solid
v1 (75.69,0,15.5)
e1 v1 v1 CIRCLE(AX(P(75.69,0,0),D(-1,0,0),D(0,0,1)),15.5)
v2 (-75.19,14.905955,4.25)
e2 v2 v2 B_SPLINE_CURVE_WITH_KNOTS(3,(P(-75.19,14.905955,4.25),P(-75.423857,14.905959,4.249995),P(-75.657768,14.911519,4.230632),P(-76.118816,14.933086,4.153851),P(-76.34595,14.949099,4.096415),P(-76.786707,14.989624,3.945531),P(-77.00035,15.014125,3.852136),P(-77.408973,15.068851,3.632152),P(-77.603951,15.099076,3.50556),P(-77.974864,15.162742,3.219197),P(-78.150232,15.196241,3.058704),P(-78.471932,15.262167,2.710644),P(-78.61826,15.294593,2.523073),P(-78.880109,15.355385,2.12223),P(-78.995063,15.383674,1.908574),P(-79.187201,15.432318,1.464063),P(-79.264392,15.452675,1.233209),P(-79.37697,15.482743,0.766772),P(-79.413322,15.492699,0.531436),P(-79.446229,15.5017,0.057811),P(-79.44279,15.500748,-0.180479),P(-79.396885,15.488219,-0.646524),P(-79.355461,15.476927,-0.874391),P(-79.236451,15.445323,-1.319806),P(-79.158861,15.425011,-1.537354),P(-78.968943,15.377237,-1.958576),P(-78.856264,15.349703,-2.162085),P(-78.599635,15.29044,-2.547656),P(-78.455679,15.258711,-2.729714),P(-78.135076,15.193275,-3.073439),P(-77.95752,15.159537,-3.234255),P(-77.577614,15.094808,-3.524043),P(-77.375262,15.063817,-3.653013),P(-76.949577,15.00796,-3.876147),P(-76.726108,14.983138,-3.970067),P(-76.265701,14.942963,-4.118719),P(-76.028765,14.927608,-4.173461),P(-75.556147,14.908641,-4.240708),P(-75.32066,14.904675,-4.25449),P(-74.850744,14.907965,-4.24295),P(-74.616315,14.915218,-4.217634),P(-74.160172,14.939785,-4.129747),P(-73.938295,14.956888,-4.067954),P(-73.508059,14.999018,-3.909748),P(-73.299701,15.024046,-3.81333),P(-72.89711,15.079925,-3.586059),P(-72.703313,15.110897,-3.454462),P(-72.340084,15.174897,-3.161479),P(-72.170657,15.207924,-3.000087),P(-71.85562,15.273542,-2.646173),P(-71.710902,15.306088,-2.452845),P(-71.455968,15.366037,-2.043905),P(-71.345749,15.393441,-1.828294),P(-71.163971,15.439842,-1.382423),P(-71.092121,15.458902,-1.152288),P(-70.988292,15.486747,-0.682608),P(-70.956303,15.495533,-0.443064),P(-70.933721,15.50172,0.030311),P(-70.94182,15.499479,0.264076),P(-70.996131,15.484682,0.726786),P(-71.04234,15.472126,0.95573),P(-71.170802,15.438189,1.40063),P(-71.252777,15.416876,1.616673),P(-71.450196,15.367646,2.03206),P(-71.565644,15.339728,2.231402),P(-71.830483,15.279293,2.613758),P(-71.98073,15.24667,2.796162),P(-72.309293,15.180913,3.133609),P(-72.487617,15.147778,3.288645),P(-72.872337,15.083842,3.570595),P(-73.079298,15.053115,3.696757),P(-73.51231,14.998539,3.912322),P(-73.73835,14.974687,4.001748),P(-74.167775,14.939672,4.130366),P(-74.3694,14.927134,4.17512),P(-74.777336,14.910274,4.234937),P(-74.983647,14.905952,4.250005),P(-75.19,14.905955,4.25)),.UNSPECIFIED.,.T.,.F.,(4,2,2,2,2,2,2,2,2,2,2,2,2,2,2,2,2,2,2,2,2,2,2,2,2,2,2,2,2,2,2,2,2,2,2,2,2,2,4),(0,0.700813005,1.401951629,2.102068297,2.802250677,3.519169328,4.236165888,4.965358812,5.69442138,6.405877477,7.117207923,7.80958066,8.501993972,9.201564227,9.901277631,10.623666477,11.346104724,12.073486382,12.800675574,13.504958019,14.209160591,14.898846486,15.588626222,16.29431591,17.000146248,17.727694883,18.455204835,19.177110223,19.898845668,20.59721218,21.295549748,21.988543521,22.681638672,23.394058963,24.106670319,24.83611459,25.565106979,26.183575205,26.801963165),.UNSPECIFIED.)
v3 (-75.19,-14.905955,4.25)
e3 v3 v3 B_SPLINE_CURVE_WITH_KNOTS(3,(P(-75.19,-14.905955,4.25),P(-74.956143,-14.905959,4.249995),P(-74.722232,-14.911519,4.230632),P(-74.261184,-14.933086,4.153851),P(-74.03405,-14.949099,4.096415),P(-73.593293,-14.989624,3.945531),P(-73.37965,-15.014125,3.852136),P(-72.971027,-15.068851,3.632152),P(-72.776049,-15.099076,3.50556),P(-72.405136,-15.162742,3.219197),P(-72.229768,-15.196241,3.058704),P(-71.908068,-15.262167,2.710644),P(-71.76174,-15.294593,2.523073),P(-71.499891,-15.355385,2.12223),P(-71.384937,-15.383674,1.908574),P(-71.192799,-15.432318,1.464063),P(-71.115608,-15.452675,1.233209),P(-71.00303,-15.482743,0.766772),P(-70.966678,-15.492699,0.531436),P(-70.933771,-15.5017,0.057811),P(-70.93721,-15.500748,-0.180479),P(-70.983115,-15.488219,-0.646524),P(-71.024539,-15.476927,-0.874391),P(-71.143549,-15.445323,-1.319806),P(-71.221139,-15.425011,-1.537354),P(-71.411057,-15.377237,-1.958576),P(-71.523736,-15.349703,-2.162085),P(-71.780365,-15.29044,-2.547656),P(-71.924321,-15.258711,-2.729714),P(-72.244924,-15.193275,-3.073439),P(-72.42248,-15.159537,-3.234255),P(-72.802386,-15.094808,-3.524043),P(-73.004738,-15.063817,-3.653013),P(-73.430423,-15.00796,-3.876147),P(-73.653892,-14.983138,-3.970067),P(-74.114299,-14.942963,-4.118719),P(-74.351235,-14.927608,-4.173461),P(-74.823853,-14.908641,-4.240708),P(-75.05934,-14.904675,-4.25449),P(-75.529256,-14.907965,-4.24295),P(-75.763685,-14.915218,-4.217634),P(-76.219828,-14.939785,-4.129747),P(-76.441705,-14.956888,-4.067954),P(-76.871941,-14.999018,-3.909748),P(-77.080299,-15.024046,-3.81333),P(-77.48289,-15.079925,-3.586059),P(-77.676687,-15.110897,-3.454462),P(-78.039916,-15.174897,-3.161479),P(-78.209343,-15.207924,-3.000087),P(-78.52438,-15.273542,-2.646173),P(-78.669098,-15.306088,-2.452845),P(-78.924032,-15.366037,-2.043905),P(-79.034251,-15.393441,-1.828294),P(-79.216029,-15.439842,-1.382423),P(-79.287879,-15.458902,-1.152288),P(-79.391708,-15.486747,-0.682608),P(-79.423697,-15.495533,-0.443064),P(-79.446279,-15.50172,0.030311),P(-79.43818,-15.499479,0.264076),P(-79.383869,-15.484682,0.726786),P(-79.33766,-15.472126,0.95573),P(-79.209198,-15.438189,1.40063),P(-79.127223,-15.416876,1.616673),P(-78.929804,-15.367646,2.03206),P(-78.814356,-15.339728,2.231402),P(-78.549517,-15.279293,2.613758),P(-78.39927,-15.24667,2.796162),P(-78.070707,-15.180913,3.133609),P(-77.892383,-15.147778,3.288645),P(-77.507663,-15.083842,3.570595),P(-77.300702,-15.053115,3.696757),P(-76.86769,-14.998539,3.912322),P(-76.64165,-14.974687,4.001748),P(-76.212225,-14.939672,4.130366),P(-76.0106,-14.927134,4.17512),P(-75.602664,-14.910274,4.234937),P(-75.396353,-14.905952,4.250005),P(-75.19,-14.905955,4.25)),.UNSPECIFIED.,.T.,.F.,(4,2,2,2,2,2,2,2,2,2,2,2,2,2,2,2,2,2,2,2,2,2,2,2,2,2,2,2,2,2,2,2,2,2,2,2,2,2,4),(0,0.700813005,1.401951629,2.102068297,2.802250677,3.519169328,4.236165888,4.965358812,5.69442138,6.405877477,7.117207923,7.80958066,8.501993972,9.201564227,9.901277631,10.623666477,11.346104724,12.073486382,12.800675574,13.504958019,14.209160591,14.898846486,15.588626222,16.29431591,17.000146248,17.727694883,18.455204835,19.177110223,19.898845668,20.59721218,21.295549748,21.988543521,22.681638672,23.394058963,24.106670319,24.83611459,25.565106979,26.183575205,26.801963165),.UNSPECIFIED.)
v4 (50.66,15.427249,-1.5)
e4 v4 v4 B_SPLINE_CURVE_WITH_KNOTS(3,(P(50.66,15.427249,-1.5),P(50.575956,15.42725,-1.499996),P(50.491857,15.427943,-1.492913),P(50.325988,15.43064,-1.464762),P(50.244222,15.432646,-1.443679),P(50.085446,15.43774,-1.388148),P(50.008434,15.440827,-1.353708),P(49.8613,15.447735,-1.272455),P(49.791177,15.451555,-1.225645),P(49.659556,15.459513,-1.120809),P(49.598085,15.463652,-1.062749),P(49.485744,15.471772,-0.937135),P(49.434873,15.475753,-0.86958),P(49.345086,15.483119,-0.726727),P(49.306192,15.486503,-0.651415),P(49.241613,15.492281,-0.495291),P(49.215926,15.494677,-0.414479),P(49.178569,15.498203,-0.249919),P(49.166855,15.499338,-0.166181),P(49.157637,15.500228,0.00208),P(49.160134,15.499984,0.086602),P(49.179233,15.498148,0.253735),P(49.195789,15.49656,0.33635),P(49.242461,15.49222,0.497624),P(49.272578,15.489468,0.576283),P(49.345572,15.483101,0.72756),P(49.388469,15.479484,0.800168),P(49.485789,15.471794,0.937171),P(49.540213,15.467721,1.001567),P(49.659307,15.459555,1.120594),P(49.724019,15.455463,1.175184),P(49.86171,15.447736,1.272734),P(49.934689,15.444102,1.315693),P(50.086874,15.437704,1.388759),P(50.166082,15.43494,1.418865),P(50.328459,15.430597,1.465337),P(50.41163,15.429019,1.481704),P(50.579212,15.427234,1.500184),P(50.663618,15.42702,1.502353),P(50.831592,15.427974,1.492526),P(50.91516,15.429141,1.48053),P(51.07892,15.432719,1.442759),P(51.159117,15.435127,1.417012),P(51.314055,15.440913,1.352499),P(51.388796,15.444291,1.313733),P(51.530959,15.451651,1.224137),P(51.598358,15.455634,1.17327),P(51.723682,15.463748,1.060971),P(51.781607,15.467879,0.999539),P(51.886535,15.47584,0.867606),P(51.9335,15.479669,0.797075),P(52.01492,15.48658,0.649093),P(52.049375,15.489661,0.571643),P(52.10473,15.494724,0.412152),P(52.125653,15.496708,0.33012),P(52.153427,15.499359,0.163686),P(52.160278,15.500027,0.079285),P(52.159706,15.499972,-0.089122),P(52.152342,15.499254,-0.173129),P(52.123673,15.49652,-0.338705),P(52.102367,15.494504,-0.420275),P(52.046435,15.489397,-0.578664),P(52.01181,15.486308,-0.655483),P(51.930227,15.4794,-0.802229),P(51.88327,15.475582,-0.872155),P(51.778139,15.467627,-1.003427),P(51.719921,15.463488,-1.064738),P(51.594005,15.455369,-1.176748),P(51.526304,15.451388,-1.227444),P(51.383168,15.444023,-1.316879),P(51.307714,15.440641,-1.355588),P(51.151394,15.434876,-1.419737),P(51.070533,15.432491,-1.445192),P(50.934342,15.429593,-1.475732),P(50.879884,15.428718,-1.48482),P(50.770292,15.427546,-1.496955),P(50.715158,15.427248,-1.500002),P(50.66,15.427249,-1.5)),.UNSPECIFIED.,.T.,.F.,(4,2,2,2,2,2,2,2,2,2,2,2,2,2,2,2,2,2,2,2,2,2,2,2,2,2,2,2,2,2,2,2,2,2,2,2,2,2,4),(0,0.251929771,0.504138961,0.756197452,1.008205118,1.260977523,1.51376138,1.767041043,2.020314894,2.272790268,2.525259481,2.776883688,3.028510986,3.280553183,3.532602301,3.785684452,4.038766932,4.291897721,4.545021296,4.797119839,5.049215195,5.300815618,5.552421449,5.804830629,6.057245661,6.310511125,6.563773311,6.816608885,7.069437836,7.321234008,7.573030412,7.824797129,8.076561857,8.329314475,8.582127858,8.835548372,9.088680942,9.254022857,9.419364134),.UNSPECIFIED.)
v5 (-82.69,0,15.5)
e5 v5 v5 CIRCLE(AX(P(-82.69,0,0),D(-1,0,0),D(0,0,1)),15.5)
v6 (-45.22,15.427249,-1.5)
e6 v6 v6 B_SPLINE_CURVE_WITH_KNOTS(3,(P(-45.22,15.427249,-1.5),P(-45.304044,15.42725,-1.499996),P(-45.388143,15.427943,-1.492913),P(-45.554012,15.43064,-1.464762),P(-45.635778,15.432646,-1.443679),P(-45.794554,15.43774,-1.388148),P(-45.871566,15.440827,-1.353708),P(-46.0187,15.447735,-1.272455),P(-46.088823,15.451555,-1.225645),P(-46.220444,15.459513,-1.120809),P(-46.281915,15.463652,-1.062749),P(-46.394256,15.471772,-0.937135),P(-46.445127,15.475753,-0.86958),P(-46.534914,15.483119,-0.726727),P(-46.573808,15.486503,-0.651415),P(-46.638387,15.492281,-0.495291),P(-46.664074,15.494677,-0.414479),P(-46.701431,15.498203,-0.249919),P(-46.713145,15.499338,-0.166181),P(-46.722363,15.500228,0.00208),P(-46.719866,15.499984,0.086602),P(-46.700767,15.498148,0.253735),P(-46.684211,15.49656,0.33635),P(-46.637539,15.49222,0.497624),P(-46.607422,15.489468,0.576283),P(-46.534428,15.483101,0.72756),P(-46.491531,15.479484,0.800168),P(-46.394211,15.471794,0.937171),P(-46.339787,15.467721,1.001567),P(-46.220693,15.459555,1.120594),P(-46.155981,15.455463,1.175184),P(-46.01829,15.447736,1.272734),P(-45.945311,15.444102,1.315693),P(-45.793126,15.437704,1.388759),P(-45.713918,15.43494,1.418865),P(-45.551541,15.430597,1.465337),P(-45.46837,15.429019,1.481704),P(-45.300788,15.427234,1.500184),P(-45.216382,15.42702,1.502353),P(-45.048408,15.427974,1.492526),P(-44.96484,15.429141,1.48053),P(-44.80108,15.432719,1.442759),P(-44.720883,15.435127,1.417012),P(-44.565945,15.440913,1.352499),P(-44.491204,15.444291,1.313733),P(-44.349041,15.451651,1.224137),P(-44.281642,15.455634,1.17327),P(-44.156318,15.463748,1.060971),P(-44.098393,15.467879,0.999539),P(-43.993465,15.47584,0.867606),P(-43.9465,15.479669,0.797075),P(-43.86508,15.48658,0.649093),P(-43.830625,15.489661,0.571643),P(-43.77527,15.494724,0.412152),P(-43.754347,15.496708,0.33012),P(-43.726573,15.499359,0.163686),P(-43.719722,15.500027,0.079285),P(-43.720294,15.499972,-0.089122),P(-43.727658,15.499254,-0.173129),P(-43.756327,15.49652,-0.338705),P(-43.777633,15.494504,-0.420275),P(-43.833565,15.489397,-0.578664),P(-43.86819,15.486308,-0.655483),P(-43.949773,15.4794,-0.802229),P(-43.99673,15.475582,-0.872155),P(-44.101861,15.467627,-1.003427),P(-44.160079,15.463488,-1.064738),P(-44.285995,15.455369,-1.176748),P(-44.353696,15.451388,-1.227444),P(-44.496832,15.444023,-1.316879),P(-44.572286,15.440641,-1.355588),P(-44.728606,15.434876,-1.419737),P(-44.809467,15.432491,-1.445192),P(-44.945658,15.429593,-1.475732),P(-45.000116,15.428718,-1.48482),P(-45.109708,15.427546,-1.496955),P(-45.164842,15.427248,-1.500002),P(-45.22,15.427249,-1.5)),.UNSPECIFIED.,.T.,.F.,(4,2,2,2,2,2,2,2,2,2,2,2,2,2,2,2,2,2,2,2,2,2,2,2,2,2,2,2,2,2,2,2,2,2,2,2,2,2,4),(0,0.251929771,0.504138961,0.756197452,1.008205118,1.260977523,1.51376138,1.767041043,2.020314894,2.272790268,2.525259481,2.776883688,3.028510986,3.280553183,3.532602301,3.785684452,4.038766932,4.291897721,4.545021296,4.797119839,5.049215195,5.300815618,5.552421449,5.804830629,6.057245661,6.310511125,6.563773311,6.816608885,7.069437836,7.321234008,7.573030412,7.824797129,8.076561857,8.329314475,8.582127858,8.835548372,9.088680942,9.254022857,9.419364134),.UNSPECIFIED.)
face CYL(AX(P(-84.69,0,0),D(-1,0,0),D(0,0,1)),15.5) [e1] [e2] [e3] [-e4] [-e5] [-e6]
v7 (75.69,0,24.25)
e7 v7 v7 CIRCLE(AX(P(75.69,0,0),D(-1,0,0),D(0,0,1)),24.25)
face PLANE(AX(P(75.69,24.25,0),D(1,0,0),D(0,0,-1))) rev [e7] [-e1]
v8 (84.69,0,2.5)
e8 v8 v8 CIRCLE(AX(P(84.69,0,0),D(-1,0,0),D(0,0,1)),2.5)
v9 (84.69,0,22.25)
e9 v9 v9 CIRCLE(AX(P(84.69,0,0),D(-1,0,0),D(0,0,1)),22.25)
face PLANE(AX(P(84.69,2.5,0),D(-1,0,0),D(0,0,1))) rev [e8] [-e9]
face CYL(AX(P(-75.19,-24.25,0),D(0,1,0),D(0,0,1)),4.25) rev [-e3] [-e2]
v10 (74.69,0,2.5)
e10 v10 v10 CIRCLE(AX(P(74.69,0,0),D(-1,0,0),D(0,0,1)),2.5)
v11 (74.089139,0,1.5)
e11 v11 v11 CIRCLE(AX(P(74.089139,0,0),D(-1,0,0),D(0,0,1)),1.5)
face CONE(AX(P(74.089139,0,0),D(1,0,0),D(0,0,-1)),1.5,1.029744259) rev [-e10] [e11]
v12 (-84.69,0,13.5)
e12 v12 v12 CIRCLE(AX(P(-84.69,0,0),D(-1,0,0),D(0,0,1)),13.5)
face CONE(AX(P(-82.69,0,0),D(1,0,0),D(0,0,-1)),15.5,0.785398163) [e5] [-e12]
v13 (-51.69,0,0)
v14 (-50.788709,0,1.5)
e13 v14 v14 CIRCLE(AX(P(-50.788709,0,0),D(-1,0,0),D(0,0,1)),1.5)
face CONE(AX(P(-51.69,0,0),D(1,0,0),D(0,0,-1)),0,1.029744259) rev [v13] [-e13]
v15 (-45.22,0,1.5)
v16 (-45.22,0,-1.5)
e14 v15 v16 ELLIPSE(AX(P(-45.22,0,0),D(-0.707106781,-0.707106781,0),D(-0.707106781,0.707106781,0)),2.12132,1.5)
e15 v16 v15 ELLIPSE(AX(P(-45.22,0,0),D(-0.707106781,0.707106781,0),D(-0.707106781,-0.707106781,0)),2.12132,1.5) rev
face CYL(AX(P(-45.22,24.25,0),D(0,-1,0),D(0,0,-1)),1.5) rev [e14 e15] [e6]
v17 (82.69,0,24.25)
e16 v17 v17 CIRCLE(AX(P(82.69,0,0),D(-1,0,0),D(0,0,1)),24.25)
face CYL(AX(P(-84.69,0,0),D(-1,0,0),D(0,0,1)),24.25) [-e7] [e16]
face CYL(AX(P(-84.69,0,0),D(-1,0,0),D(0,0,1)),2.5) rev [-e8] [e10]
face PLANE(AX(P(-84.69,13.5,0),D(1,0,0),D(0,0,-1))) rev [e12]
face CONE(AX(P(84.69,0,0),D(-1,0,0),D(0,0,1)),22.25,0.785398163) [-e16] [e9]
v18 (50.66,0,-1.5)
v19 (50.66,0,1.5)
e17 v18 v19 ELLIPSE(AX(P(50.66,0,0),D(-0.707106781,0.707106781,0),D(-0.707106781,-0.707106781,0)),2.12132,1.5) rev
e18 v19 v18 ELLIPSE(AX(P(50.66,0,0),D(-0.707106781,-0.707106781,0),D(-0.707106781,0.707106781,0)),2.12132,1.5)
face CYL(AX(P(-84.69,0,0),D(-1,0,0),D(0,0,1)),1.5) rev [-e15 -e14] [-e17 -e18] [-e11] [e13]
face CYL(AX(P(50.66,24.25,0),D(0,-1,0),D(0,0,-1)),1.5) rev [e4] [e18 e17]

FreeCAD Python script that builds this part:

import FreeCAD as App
import Part
import Sketcher

V = App.Vector
Q = App.Units.Quantity

doc = App.newDocument("Part")
body = doc.addObject("PartDesign::Body", "Body")

# Sketch on XY plane
sketch1 = body.newObject("Sketcher::SketchObject", "Sketch")
sketch1.AttachmentSupport = (doc.getObject("XY_Plane"), [""])
sketch1.MapMode = "FlatFace"
sketch1.addGeometry([
    Part.LineSegment(V(84.7, 2.5, 0), V(84.7, 22.2, 0)),  # 0
    Part.LineSegment(V(84.7, 22.2, 0), V(82.7, 24.2, 0)),  # 1
    Part.LineSegment(V(82.7, 24.2, 0), V(75.7, 24.2, 0)),  # 2
    Part.LineSegment(V(75.7, 24.2, 0), V(75.7, 15.5, 0)),  # 3
    Part.LineSegment(V(75.7, 15.5, 0), V(-82.7, 15.5, 0)),  # 4
    Part.LineSegment(V(-82.7, 15.5, 0), V(-84.7, 13.5, 0)),  # 5
    Part.LineSegment(V(-84.7, 13.5, 0), V(-84.7, 0, 0)),  # 6
    Part.LineSegment(V(-84.7, 0, 0), V(-51.7, 0, 0)),  # 7
    Part.LineSegment(V(-51.7, 0, 0), V(-50.8, 1.5, 0)),  # 8
    Part.LineSegment(V(-50.8, 1.5, 0), V(74.1, 1.5, 0)),  # 9
    Part.LineSegment(V(74.1, 1.5, 0), V(74.7, 2.5, 0)),  # 10
    Part.LineSegment(V(74.7, 2.5, 0), V(84.7, 2.5, 0)),  # 11
], False)
sketch1.addConstraint([
    Sketcher.Constraint("Coincident", 0, 2, 1, 1),
    Sketcher.Constraint("Coincident", 1, 2, 2, 1),
    Sketcher.Constraint("Coincident", 2, 2, 3, 1),
    Sketcher.Constraint("Coincident", 3, 2, 4, 1),
    Sketcher.Constraint("Coincident", 4, 2, 5, 1),
    Sketcher.Constraint("Coincident", 5, 2, 6, 1),
    Sketcher.Constraint("Coincident", 6, 2, 7, 1),
    Sketcher.Constraint("Coincident", 7, 2, 8, 1),
    Sketcher.Constraint("Coincident", 8, 2, 9, 1),
    Sketcher.Constraint("Coincident", 9, 2, 10, 1),
    Sketcher.Constraint("Coincident", 10, 2, 11, 1),
    Sketcher.Constraint("Coincident", 11, 2, 0, 1),
    Sketcher.Constraint("Vertical", 0),
    Sketcher.Constraint("Horizontal", 2),
    Sketcher.Constraint("Vertical", 3),
    Sketcher.Constraint("Horizontal", 4),
    Sketcher.Constraint("Vertical", 6),
    Sketcher.Constraint("Horizontal", 7),
    Sketcher.Constraint("Horizontal", 9),
    Sketcher.Constraint("Horizontal", 11),
    Sketcher.Constraint("PointOnObject", 6, 2, -1),
    Sketcher.Constraint("Perpendicular", 1, 5),
    Sketcher.Constraint("Parallel", 8, 10),
    Sketcher.Constraint("Equal", 1, 5),
    Sketcher.Constraint("DistanceX", 2, 2, 2, 1, 7.0),
    Sketcher.Constraint("DistanceX", 7, 1, 7, 2, 33.0),
    Sketcher.Constraint("DistanceX", 11, 1, 11, 2, 10.0),
    Sketcher.Constraint("Angle", 1, Q("135 deg")),
    Sketcher.Constraint("Angle", 8, Q("59 deg")),
    Sketcher.Constraint("DistanceY", 6, 2, 6, 1, 13.5),
    Sketcher.Constraint("DistanceX", 1, 2, 0, 2, 2.0),
    Sketcher.Constraint("DistanceY", 8, 2, 4, 2, 14.0),
    Sketcher.Constraint("DistanceY", 9, 2, 10, 2, 1.0),
    Sketcher.Constraint("DistanceX", 4, 2, 4, 1, 158.38),
    Sketcher.Constraint("DistanceY", 0, 1, 0, 2, 19.75),
    Sketcher.Constraint("DistanceX", -1, 1, 0, 2, 84.69),
])
revolution = body.newObject("PartDesign::Revolution", "Revolution")
revolution.Profile = sketch1
revolution.ReferenceAxis = (sketch1, ["H_Axis"])
revolution.Angle = 360

# Sketch on XZ plane
sketch2 = body.newObject("Sketcher::SketchObject", "Sketch001")
sketch2.AttachmentSupport = (doc.getObject("XZ_Plane"), [""])
sketch2.MapMode = "FlatFace"
sketch2.addGeometry([
    Part.Circle(V(50.7, 0, 0), V(0, 0, 1), 1.5),
    Part.Circle(V(-45.2, 0, 0), V(0, 0, 1), 1.5),
], False)
sketch2.addConstraint([
    Sketcher.Constraint("Equal", 0, 1),
    Sketcher.Constraint("PointOnObject", 0, 3, -1),
    Sketcher.Constraint("PointOnObject", 1, 3, -1),
    Sketcher.Constraint("Diameter", 0, 3.0),
    Sketcher.Constraint("DistanceX", -1, 1, 0, 3, 50.66),
    Sketcher.Constraint("DistanceX", 1, 3, -1, 1, 45.22),
])
pocket1 = body.newObject("PartDesign::Pocket", "Pocket")
pocket1.Profile = sketch2
pocket1.Type = "ThroughAll"

# Sketch on XZ plane
sketch3 = body.newObject("Sketcher::SketchObject", "Sketch002")
sketch3.AttachmentSupport = (doc.getObject("XZ_Plane"), [""])
sketch3.MapMode = "FlatFace"
sketch3.addGeometry(Part.Circle(V(-75.2, 0, 0), V(0, 0, 1), 4.2), False)
sketch3.addConstraint([
    Sketcher.Constraint("PointOnObject", 0, 3, -1),
    Sketcher.Constraint("Diameter", 0, 8.5),
    Sketcher.Constraint("DistanceX", 0, 3, -1, 1, 75.19),
])
pocket2 = body.newObject("PartDesign::Pocket", "Pocket001")
pocket2.Profile = sketch3
pocket2.Type = "ThroughAll"
pocket2.Midplane = True

doc.recompute()
